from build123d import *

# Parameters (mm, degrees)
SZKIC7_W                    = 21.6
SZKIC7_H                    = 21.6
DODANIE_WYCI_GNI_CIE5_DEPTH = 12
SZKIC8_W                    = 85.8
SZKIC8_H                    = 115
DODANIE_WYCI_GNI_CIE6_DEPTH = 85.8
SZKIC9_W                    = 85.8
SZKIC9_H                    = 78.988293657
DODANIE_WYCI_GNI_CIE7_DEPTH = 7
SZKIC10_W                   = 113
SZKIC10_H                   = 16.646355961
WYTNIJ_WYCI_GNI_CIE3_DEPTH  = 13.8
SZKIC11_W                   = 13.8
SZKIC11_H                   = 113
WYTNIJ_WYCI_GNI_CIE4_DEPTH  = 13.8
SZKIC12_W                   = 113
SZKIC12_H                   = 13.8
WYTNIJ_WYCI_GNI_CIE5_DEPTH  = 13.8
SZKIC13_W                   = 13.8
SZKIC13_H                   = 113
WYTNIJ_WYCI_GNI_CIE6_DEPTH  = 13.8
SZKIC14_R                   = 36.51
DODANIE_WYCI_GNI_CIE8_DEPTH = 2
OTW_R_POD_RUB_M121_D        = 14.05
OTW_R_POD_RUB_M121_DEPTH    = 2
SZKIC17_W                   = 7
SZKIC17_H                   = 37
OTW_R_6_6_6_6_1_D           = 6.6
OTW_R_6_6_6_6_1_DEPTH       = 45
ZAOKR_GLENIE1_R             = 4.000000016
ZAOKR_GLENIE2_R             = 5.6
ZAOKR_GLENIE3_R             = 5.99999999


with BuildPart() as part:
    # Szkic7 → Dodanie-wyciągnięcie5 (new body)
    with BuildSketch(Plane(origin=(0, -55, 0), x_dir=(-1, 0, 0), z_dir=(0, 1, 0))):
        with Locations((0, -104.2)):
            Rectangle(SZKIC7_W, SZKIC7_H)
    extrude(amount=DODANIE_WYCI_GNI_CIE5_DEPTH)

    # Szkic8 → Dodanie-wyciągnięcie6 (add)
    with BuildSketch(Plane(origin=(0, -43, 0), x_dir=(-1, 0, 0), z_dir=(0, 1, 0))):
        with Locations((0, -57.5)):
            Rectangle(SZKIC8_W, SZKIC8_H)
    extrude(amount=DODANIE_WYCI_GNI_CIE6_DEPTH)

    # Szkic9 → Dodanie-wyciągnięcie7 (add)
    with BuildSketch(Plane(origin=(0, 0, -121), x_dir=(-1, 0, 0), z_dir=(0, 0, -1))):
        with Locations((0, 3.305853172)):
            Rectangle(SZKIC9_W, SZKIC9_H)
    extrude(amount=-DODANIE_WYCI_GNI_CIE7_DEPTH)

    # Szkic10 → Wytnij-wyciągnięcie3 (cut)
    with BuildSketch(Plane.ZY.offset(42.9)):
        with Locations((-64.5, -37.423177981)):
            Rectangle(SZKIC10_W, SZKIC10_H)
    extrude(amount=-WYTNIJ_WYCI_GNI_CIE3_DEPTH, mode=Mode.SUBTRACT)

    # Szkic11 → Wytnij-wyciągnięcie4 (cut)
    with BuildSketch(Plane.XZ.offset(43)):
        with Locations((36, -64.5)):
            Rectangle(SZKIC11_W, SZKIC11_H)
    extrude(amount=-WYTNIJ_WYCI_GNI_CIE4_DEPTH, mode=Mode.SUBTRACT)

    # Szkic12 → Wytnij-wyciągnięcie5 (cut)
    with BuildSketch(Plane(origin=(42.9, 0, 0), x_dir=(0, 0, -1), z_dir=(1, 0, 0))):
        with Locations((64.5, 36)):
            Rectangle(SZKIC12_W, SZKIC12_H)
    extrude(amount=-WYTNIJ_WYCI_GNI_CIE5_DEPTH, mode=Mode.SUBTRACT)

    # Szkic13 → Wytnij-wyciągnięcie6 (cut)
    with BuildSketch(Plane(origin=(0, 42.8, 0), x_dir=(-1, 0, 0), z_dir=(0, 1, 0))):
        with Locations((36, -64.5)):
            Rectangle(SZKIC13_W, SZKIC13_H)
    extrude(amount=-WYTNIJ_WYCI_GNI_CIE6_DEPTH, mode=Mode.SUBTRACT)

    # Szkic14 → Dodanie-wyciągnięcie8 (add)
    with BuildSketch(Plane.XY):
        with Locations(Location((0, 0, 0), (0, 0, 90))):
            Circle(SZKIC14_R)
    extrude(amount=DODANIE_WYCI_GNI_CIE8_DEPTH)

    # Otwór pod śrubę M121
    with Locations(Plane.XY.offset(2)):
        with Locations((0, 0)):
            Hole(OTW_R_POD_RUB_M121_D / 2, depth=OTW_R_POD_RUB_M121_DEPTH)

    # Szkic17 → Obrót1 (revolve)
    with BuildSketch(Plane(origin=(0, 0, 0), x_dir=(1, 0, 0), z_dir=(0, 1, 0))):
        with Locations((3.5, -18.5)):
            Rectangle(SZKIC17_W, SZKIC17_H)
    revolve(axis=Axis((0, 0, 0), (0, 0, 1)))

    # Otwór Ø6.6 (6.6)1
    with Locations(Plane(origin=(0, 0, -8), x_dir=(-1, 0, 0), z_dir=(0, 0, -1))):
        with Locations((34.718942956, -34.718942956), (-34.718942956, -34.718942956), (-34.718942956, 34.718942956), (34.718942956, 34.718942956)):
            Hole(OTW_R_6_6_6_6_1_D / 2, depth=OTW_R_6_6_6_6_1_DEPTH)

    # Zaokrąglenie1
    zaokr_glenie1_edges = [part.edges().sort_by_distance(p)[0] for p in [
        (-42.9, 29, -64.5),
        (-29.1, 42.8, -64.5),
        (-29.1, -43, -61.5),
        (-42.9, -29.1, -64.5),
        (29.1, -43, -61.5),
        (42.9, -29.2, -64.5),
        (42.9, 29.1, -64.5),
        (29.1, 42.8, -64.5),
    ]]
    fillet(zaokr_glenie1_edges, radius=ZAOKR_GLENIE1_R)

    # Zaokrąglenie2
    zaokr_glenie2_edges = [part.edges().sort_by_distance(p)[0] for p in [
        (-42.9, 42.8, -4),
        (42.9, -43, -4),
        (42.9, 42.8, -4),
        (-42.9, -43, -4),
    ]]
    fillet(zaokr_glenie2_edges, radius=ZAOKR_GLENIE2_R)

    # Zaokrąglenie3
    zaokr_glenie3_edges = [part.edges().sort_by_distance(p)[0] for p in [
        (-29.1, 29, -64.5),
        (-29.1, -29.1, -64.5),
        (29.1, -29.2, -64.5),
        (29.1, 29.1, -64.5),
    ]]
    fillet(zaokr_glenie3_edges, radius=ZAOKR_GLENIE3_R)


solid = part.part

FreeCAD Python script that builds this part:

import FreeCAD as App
import Part
import Sketcher
from FreeCAD import Vector


def edges_at(feature, points):
    """Names of the edges that pass closest to the given points."""
    edges = feature.Shape.Edges
    near = lambda p: min(range(len(edges)), key=lambda i: edges[i].distToShape(Part.Vertex(*p))[0])
    return sorted({f"Edge{near(p) + 1}" for p in points})


def add_polygon(sketch, points):
    """Adds a closed chain of lines whose ends are joined by coincident constraints."""
    first, n = sketch.GeometryCount, len(points)
    for a, b in zip(points, points[1:] + points[:1]):
        sketch.addGeometry(Part.LineSegment(App.Vector(*a, 0), App.Vector(*b, 0)), False)
    for i in range(n):
        sketch.addConstraint(Sketcher.Constraint("Coincident", first + i, 2, first + (i + 1) % n, 1))

doc = App.newDocument("Part")
body = doc.addObject("PartDesign::Body", "Body")

# Sketch on XZ plane
sketch1 = body.newObject("Sketcher::SketchObject", "Sketch")
sketch1.AttachmentSupport = (doc.getObject("XZ_Plane"), [""])
sketch1.MapMode = "FlatFace"
sketch1.AttachmentOffset = App.Placement(Vector(0, 0, 55), App.Rotation())
add_polygon(sketch1, [(11, -93), (11, -115), (-11, -115), (-11, -93)])  # lines 0-3
sketch1.addConstraint(Sketcher.Constraint("Vertical", 0))
sketch1.addConstraint(Sketcher.Constraint("Horizontal", 1))
sketch1.addConstraint(Sketcher.Constraint("Vertical", 2))
sketch1.addConstraint(Sketcher.Constraint("Horizontal", 3))
sketch1.addConstraint(Sketcher.Constraint("Equal", 3, 0))
sketch1.addConstraint(Sketcher.Constraint("DistanceX", 1, 2, 1, 1, 21.6))
sketch1.addConstraint(Sketcher.Constraint("DistanceY", 0, 2, -1, 1, 115.0))
sketch1.addConstraint(Sketcher.Constraint("DistanceX", -1, 1, 0, 2, 10.8))
pad1 = body.newObject("PartDesign::Pad", "Pad")
pad1.Profile = sketch1
pad1.Length = 12
pad1.Reversed = True

# Sketch on XZ plane
sketch2 = body.newObject("Sketcher::SketchObject", "Sketch001")
sketch2.AttachmentSupport = (doc.getObject("XZ_Plane"), [""])
sketch2.MapMode = "FlatFace"
sketch2.AttachmentOffset = App.Placement(Vector(0, 0, 43), App.Rotation())
add_polygon(sketch2, [(43, 0), (43, -115), (-43, -115), (-43, 0)])  # lines 0-3
sketch2.addConstraint(Sketcher.Constraint("Vertical", 0))
sketch2.addConstraint(Sketcher.Constraint("Horizontal", 1))
sketch2.addConstraint(Sketcher.Constraint("Vertical", 2))
sketch2.addConstraint(Sketcher.Constraint("Horizontal", 3))
sketch2.addConstraint(Sketcher.Constraint("Symmetric", 2, 2, 3, 2, -1, 1))
sketch2.addConstraint(Sketcher.Constraint("DistanceY", 0, 2, 0, 1, 115.0))
sketch2.addConstraint(Sketcher.Constraint("DistanceX", 1, 2, 1, 1, 85.8))
pad2 = body.newObject("PartDesign::Pad", "Pad001")
pad2.Profile = sketch2
pad2.Length = 85.8
pad2.Reversed = True

# Sketch on XY plane
sketch3 = body.newObject("Sketcher::SketchObject", "Sketch002")
sketch3.AttachmentSupport = (doc.getObject("XY_Plane"), [""])
sketch3.MapMode = "FlatFace"
sketch3.AttachmentOffset = App.Placement(Vector(0, 0, -121), App.Rotation())
add_polygon(sketch3, [(43, 43), (43, -36), (-43, -36), (-43, 43)])  # lines 0-3
sketch3.addConstraint(Sketcher.Constraint("Vertical", 0))
sketch3.addConstraint(Sketcher.Constraint("Horizontal", 1))
sketch3.addConstraint(Sketcher.Constraint("Vertical", 2))
sketch3.addConstraint(Sketcher.Constraint("Horizontal", 3))
sketch3.addConstraint(Sketcher.Constraint("DistanceX", 1, 2, 1, 1, 85.8))
sketch3.addConstraint(Sketcher.Constraint("DistanceX", -1, 1, 0, 2, 42.9))
sketch3.addConstraint(Sketcher.Constraint("DistanceY", -1, 1, 2, 2, 42.8))
sketch3.addConstraint(Sketcher.Constraint("DistanceY", 0, 2, 0, 1, 78.988294))
pad3 = body.newObject("PartDesign::Pad", "Pad002")
pad3.Profile = sketch3
pad3.Length = 7

# Sketch on YZ plane
sketch4 = body.newObject("Sketcher::SketchObject", "Sketch003")
sketch4.AttachmentSupport = (doc.getObject("YZ_Plane"), [""])
sketch4.MapMode = "FlatFace"
sketch4.AttachmentOffset = App.Placement(Vector(0, 0, -42.9), App.Rotation())
add_polygon(sketch4, [(-29, -121), (-46, -121), (-46, -8), (-29, -8)])  # lines 0-3
sketch4.addConstraint(Sketcher.Constraint("Horizontal", 0))
sketch4.addConstraint(Sketcher.Constraint("Vertical", 1))
sketch4.addConstraint(Sketcher.Constraint("Horizontal", 2))
sketch4.addConstraint(Sketcher.Constraint("Vertical", 3))
sketch4.addConstraint(Sketcher.Constraint("DistanceY", 1, 1, 1, 2, 113.0))
sketch4.addConstraint(Sketcher.Constraint("DistanceY", 0, 2, -1, 1, 121.0))
sketch4.addConstraint(Sketcher.Constraint("DistanceX", 2, 2, -1, 1, 29.1))
sketch4.addConstraint(Sketcher.Constraint("DistanceX", 0, 2, 0, 1, 16.646356))
pocket1 = body.newObject("PartDesign::Pocket", "Pocket")
pocket1.Profile = sketch4
pocket1.Length = 13.8
pocket1.Reversed = True

# Sketch on XZ plane
sketch5 = body.newObject("Sketcher::SketchObject", "Sketch004")
sketch5.AttachmentSupport = (doc.getObject("XZ_Plane"), [""])
sketch5.MapMode = "FlatFace"
sketch5.AttachmentOffset = App.Placement(Vector(0, 0, 43), App.Rotation())
add_polygon(sketch5, [(29, -8), (29, -121), (43, -121), (43, -8)])  # lines 0-3
sketch5.addConstraint(Sketcher.Constraint("Vertical", 0))
sketch5.addConstraint(Sketcher.Constraint("Horizontal", 1))
sketch5.addConstraint(Sketcher.Constraint("Vertical", 2))
sketch5.addConstraint(Sketcher.Constraint("Horizontal", 3))
sketch5.addConstraint(Sketcher.Constraint("DistanceY", 0, 2, 0, 1, 113.0))
sketch5.addConstraint(Sketcher.Constraint("DistanceX", 1, 1, 1, 2, 13.8))
sketch5.addConstraint(Sketcher.Constraint("DistanceY", 0, 2, -1, 1, 121.0))
sketch5.addConstraint(Sketcher.Constraint("DistanceX", -1, 1, 0, 2, 29.1))
pocket2 = body.newObject("PartDesign::Pocket", "Pocket001")
pocket2.Profile = sketch5
pocket2.Length = 13.8

# Sketch on YZ plane
sketch6 = body.newObject("Sketcher::SketchObject", "Sketch005")
sketch6.AttachmentSupport = (doc.getObject("YZ_Plane"), [""])
sketch6.MapMode = "FlatFace"
sketch6.AttachmentOffset = App.Placement(Vector(0, 0, 42.9), App.Rotation())
add_polygon(sketch6, [(43, -8), (29, -8), (29, -121), (43, -121)])  # lines 0-3
sketch6.addConstraint(Sketcher.Constraint("Horizontal", 0))
sketch6.addConstraint(Sketcher.Constraint("Vertical", 1))
sketch6.addConstraint(Sketcher.Constraint("Horizontal", 2))
sketch6.addConstraint(Sketcher.Constraint("Vertical", 3))
sketch6.addConstraint(Sketcher.Constraint("DistanceY", 1, 2, 1, 1, 113.0))
sketch6.addConstraint(Sketcher.Constraint("DistanceX", 0, 2, 0, 1, 13.8))
sketch6.addConstraint(Sketcher.Constraint("DistanceY", 0, 2, -1, 1, 8.0))
sketch6.addConstraint(Sketcher.Constraint("DistanceX", -1, 1, 0, 2, 29.1))
pocket3 = body.newObject("PartDesign::Pocket", "Pocket002")
pocket3.Profile = sketch6
pocket3.Length = 13.8

# Sketch on XZ plane
sketch7 = body.newObject("Sketcher::SketchObject", "Sketch006")
sketch7.AttachmentSupport = (doc.getObject("XZ_Plane"), [""])
sketch7.MapMode = "FlatFace"
sketch7.AttachmentOffset = App.Placement(Vector(0, 0, -42.8), App.Rotation())
add_polygon(sketch7, [(-29, -8), (-29, -121), (-43, -121), (-43, -8)])  # lines 0-3
sketch7.addConstraint(Sketcher.Constraint("Vertical", 0))
sketch7.addConstraint(Sketcher.Constraint("Horizontal", 1))
sketch7.addConstraint(Sketcher.Constraint("Vertical", 2))
sketch7.addConstraint(Sketcher.Constraint("Horizontal", 3))
sketch7.addConstraint(Sketcher.Constraint("DistanceY", 0, 2, 0, 1, 113.0))
sketch7.addConstraint(Sketcher.Constraint("DistanceX", 1, 2, 1, 1, 13.8))
sketch7.addConstraint(Sketcher.Constraint("DistanceY", 0, 2, -1, 1, 121.0))
sketch7.addConstraint(Sketcher.Constraint("DistanceX", 0, 2, -1, 1, 29.1))
pocket4 = body.newObject("PartDesign::Pocket", "Pocket003")
pocket4.Profile = sketch7
pocket4.Length = 13.8
pocket4.Reversed = True

# Sketch on XY plane
sketch8 = body.newObject("Sketcher::SketchObject", "Sketch007")
sketch8.AttachmentSupport = (doc.getObject("XY_Plane"), [""])
sketch8.MapMode = "FlatFace"
sketch8.addGeometry(Part.Circle(Vector(0, 0, 0), Vector(0, 0, 1), 37), False)
sketch8.addConstraint(Sketcher.Constraint("Coincident", 0, 3, -1, 1))
sketch8.addConstraint(Sketcher.Constraint("Diameter", 0, 73.02))
pad4 = body.newObject("PartDesign::Pad", "Pad003")
pad4.Profile = sketch8
pad4.Length = 2

# Sketch on XY plane
sketch9 = body.newObject("Sketcher::SketchObject", "Sketch008")
sketch9.AttachmentSupport = (doc.getObject("XY_Plane"), [""])
sketch9.MapMode = "FlatFace"
sketch9.AttachmentOffset = App.Placement(Vector(0, 0, 2), App.Rotation())
sketch9.addGeometry(Part.Circle(Vector(0, 0, 0), Vector(0, 0, 1), 7), False)
sketch9.addConstraint(Sketcher.Constraint("Coincident", 0, 3, -1, 1))
sketch9.addConstraint(Sketcher.Constraint("Diameter", 0, 14.05))
doc.recompute()
hole = body.newObject("PartDesign::Hole", "Hole")
hole.Profile = sketch9
hole.ThreadType = "None"
hole.Diameter = 14.05
hole.DepthType = "Dimension"
hole.Depth = 2
hole.DrillPoint = "Flat"

# Sketch on XZ plane
sketch10 = body.newObject("Sketcher::SketchObject", "Sketch009")
sketch10.AttachmentSupport = (doc.getObject("XZ_Plane"), [""])
sketch10.MapMode = "FlatFace"
add_polygon(sketch10, [(0, 0), (0, 37), (7, 37), (7, 0)])  # lines 0-3
sketch10.addConstraint(Sketcher.Constraint("Vertical", 0))
sketch10.addConstraint(Sketcher.Constraint("Horizontal", 1))
sketch10.addConstraint(Sketcher.Constraint("Vertical", 2))
sketch10.addConstraint(Sketcher.Constraint("Horizontal", 3))
sketch10.addConstraint(Sketcher.Constraint("Coincident", 3, 2, -1, 1))
sketch10.addConstraint(Sketcher.Constraint("DistanceX", 1, 1, 1, 2, 7.0))
sketch10.addConstraint(Sketcher.Constraint("DistanceY", 0, 1, 0, 2, 37.0))
revolution = body.newObject("PartDesign::Revolution", "Revolution")
revolution.Profile = sketch10
revolution.ReferenceAxis = (sketch10, ["V_Axis"])
revolution.Angle = 360

# Sketch on XY plane
sketch11 = body.newObject("Sketcher::SketchObject", "Sketch010")
sketch11.AttachmentSupport = (doc.getObject("XY_Plane"), [""])
sketch11.MapMode = "FlatFace"
sketch11.AttachmentOffset = App.Placement(Vector(0, 0, -8), App.Rotation())
sketch11.addGeometry(Part.Circle(Vector(-34.7, -34.7, 0), Vector(0, 0, 1), 3.3), False)
sketch11.addGeometry(Part.Circle(Vector(34.7, -34.7, 0), Vector(0, 0, 1), 3.3), False)
sketch11.addGeometry(Part.Circle(Vector(34.7, 34.7, 0), Vector(0, 0, 1), 3.3), False)
sketch11.addGeometry(Part.Circle(Vector(-34.7, 34.7, 0), Vector(0, 0, 1), 3.3), False)
sketch11.addConstraint(Sketcher.Constraint("Equal", 0, 1))
sketch11.addConstraint(Sketcher.Constraint("Equal", 1, 2))
sketch11.addConstraint(Sketcher.Constraint("Equal", 2, 3))
sketch11.addConstraint(Sketcher.Constraint("Symmetric", 0, 3, 2, 3, -1, 1))
sketch11.addConstraint(Sketcher.Constraint("Symmetric", 1, 3, 3, 3, -1, 1))
sketch11.addConstraint(Sketcher.Constraint("Symmetric", 0, 3, 1, 3, -2))
sketch11.addConstraint(Sketcher.Constraint("Diameter", 0, 6.6))
sketch11.addConstraint(Sketcher.Constraint("DistanceX", 0, 3, -1, 1, 34.718943))
sketch11.addConstraint(Sketcher.Constraint("DistanceY", 0, 3, -1, 1, 34.718943))
doc.recompute()
hole2 = body.newObject("PartDesign::Hole", "Hole001")
hole2.Profile = sketch11
hole2.ThreadType = "None"
hole2.Diameter = 6.6
hole2.DepthType = "Dimension"
hole2.Depth = 45
hole2.DrillPoint = "Flat"
hole2.Reversed = True
doc.recompute()

fillet = body.newObject("PartDesign::Fillet", "Fillet")
fillet.Base = (hole2, edges_at(hole2, [
    (-42.9, 29, -64.5),
    (-29.1, 42.8, -64.5),
    (-29.1, -43, -61.5),
    (-42.9, -29.1, -64.5),
    (29.1, -43, -61.5),
    (42.9, -29.2, -64.5),
    (42.9, 29.1, -64.5),
    (29.1, 42.8, -64.5),
]))
fillet.Radius = 4
doc.recompute()

fillet2 = body.newObject("PartDesign::Fillet", "Fillet001")
fillet2.Base = (fillet, edges_at(fillet, [
    (-42.9, 42.8, -4),
    (42.9, -43, -4),
    (42.9, 42.8, -4),
    (-42.9, -43, -4),
]))
fillet2.Radius = 5.6
doc.recompute()

fillet3 = body.newObject("PartDesign::Fillet", "Fillet002")
fillet3.Base = (fillet2, edges_at(fillet2, [
    (-29.1, 29, -64.5),
    (-29.1, -29.1, -64.5),
    (29.1, -29.2, -64.5),
    (29.1, 29.1, -64.5),
]))
fillet3.Radius = 6

doc.recompute()
